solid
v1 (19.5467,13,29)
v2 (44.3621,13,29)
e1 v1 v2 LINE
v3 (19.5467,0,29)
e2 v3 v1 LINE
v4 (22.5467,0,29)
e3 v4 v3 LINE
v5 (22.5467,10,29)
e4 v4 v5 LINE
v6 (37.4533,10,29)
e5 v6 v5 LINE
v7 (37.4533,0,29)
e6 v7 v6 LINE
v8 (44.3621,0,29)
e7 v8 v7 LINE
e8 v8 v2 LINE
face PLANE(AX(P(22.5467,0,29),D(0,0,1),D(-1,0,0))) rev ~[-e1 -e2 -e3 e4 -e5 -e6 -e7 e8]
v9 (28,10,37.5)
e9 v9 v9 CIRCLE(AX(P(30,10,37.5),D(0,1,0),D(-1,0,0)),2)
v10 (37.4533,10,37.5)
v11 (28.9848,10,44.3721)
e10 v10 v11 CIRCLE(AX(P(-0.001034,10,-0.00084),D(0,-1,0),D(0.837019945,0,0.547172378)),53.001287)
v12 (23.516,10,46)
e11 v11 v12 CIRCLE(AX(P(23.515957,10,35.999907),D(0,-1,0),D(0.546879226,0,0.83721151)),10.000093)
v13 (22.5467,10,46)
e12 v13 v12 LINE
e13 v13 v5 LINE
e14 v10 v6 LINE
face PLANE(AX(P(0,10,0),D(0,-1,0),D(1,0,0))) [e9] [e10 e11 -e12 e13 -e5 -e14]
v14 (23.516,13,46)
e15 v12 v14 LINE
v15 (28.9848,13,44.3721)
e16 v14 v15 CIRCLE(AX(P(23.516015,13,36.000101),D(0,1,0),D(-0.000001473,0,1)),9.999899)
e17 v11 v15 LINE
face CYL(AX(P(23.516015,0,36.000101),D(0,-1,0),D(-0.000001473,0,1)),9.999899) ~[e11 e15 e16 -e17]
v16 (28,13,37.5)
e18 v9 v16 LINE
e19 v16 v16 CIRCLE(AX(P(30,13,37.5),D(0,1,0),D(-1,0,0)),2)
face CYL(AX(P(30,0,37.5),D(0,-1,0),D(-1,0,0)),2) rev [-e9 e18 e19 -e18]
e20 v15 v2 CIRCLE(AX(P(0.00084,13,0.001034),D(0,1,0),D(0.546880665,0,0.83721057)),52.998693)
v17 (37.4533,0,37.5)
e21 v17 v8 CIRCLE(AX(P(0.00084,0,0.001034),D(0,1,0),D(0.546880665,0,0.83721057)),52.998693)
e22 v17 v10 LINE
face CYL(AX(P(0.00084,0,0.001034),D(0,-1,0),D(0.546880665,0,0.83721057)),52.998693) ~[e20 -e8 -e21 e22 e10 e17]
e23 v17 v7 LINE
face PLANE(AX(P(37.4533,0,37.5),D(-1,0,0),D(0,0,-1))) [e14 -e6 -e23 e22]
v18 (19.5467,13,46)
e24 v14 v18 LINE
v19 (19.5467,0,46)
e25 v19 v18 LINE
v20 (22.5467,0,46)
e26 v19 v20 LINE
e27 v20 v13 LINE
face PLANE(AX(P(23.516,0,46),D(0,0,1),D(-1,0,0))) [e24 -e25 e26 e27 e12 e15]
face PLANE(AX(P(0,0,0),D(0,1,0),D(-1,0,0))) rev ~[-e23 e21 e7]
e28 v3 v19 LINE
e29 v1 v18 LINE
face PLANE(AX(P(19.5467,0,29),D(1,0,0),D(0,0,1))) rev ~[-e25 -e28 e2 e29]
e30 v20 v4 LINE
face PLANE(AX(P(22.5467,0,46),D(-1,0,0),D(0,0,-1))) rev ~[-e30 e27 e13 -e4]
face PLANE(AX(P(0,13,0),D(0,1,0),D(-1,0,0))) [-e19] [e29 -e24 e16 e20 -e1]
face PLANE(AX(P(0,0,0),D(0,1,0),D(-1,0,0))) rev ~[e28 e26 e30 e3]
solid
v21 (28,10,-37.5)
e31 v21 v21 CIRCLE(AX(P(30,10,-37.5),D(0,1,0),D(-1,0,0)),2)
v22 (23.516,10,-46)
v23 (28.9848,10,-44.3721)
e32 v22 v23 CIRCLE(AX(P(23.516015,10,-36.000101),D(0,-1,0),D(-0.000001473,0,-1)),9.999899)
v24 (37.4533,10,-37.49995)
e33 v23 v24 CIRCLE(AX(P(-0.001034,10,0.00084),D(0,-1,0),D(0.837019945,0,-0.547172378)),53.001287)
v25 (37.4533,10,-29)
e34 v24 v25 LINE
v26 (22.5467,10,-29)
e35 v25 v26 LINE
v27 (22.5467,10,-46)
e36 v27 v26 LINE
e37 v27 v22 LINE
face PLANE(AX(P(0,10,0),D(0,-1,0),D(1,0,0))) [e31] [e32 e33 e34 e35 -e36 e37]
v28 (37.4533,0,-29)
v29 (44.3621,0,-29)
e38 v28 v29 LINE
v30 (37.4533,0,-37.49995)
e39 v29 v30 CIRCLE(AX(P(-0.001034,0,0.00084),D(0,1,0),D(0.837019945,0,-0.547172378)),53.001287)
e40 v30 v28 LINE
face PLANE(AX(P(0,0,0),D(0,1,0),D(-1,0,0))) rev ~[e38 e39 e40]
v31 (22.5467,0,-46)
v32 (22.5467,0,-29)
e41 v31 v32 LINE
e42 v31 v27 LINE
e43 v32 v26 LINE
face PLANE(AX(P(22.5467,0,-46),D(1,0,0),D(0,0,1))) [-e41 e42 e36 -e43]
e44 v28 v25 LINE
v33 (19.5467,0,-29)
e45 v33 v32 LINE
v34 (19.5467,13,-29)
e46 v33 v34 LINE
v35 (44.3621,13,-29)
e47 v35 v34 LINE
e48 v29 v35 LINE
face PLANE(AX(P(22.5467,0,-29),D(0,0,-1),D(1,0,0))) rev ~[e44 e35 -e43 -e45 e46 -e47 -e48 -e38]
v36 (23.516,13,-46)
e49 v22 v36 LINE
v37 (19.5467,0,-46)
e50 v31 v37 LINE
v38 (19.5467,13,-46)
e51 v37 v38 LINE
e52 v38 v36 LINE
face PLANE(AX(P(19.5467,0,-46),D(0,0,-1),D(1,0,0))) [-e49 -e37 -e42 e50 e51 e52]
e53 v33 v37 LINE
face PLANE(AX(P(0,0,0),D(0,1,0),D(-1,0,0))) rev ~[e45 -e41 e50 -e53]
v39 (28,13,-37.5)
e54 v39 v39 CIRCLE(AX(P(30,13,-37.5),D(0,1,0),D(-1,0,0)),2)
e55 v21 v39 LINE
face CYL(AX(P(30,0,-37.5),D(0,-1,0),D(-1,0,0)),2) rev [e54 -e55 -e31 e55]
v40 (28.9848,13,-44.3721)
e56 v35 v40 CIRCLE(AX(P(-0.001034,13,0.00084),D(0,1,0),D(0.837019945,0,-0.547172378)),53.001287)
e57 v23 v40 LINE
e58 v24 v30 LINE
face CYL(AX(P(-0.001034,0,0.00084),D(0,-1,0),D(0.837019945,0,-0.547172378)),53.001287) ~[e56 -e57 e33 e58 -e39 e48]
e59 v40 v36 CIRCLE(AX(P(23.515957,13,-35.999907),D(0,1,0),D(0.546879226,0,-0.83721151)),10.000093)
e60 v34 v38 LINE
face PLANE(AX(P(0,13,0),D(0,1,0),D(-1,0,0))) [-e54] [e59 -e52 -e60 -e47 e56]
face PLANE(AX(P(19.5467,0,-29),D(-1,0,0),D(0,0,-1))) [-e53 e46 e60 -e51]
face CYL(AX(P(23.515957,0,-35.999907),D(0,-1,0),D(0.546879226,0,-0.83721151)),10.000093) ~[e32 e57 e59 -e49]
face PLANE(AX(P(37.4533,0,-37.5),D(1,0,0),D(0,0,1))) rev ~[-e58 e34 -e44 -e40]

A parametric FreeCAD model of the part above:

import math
import FreeCAD as App
import Part
import Sketcher
Q = App.Units.Quantity

doc = App.newDocument("Part")
body = doc.addObject("PartDesign::Body", "Body")
body.AllowCompound = True

sketch1 = body.newObject("Sketcher::SketchObject", "Sketch")
sketch1.AttachmentSupport = (doc.getObject("XZ_Plane"), [""])
sketch1.MapMode = "FlatFace"
sketch1.addGeometry([
    Part.LineSegment(App.Vector(19.5467, -29, 0), App.Vector(44.3621, -29, 0)),
    Part.ArcOfCircle(Part.Circle(App.Vector(-0.001034, 0.00084, 0), App.Vector(0, 0, 1), 53.001287), math.radians(-56.846137), math.radians(-33.173242)),
    Part.ArcOfCircle(Part.Circle(App.Vector(23.516, -36, 0), App.Vector(0, 0, 1), 9.999992), math.radians(-90), math.radians(-56.846738)),
    Part.LineSegment(App.Vector(23.516, -46, 0), App.Vector(19.5467, -46, 0)),
    Part.LineSegment(App.Vector(19.5467, -46, 0), App.Vector(19.5467, -29, 0)),
    Part.Circle(App.Vector(30, -37.5, 0), App.Vector(0, 0, 1), 2),
    Part.ArcOfCircle(Part.Circle(App.Vector(23.516, 36, 0), App.Vector(0, 0, 1), 10), math.radians(56.846738), math.radians(90)),
    Part.ArcOfCircle(Part.Circle(App.Vector(0.00084, 0.001034, 0), App.Vector(0, 0, 1), 52.998693), math.radians(33.172654), math.radians(56.846724)),
    Part.LineSegment(App.Vector(44.3621, 29, 0), App.Vector(19.5467, 29, 0)),
    Part.LineSegment(App.Vector(19.5467, 29, 0), App.Vector(19.5467, 46, 0)),
    Part.LineSegment(App.Vector(19.5467, 46, 0), App.Vector(23.516, 46, 0)),
    Part.Circle(App.Vector(30, 37.5, 0), App.Vector(0, 0, 1), 2),
], False)
sketch1.addConstraint([
    Sketcher.Constraint("Coincident", 0, 2, 1, 2),
    Sketcher.Constraint("Tangent", 1, 1, 2, 2),
    Sketcher.Constraint("Tangent", 2, 1, 3, 1),
    Sketcher.Constraint("Coincident", 3, 2, 4, 1),
    Sketcher.Constraint("Coincident", 4, 2, 0, 1),
    Sketcher.Constraint("Tangent", 6, 1, 7, 2),
    Sketcher.Constraint("Coincident", 7, 1, 8, 1),
    Sketcher.Constraint("Coincident", 8, 2, 9, 1),
    Sketcher.Constraint("Coincident", 9, 2, 10, 1),
    Sketcher.Constraint("Tangent", 10, 2, 6, 2),
    Sketcher.Constraint("Horizontal", 0),
    Sketcher.Constraint("Horizontal", 3),
    Sketcher.Constraint("Vertical", 4),
    Sketcher.Constraint("Horizontal", 8),
    Sketcher.Constraint("Vertical", 9),
    Sketcher.Constraint("Horizontal", 10),
    Sketcher.Constraint("Equal", 2, 6),
    Sketcher.Constraint("Equal", 5, 11),
    Sketcher.Constraint("Symmetric", 1, 3, 7, 3, -2),
    Sketcher.Constraint("Symmetric", 2, 3, 6, 3, -1),
    Sketcher.Constraint("Symmetric", 5, 3, 11, 3, -1),
    Sketcher.Constraint("Symmetric", 0, 2, 7, 1, -1),
    Sketcher.Constraint("Vertical", 4, 2, 8, 2),
    Sketcher.Constraint("Diameter", 5, Q("4 mm")),
    Sketcher.Constraint("Radius", 2, Q("10 mm")),
    Sketcher.Constraint("DistanceY", 4, 1, 4, 2, Q("17 mm")),
    Sketcher.Constraint("DistanceY", 2, 3, -1, 1, Q("36 mm")),
    Sketcher.Constraint("DistanceX", -1, 1, 5, 3, Q("30 mm")),
    Sketcher.Constraint("DistanceY", 5, 3, 11, 3, Q("75 mm")),
    Sketcher.Constraint("Radius", 1, Q("53.0013 mm")),
    Sketcher.Constraint("Radius", 7, Q("52.9987 mm")),
    Sketcher.Constraint("DistanceX", 0, 1, 0, 2, Q("24.8154 mm")),
])
pad1 = body.newObject("PartDesign::Pad", "Pad")
pad1.Profile = sketch1
pad1.Length = 13
pad1.Reversed = True

sketch2 = body.newObject("Sketcher::SketchObject", "Sketch001")
sketch2.AttachmentSupport = (doc.getObject("XZ_Plane"), [""])
sketch2.MapMode = "FlatFace"
sketch2.addGeometry([
    Part.LineSegment(App.Vector(37.4533, 29, 0), App.Vector(37.4533, 37.5, 0)),
    Part.ArcOfCircle(Part.Circle(App.Vector(-0.001034, -0.00084, 0), App.Vector(0, 0, 1), 53.001287), math.radians(45.035549), math.radians(56.846137)),
    Part.ArcOfCircle(Part.Circle(App.Vector(23.516, 36, 0), App.Vector(0, 0, 1), 9.999992), math.radians(56.846738), math.radians(90)),
    Part.LineSegment(App.Vector(23.516, 46, 0), App.Vector(22.5467, 46, 0)),
    Part.LineSegment(App.Vector(22.5467, 46, 0), App.Vector(22.5467, 29, 0)),
    Part.LineSegment(App.Vector(22.5467, 29, 0), App.Vector(37.4533, 29, 0)),
    Part.Circle(App.Vector(30, 37.5, 0), App.Vector(0, 0, 1), 2),
    Part.ArcOfCircle(Part.Circle(App.Vector(23.516, -36, 0), App.Vector(0, 0, 1), 10), math.radians(-90), math.radians(-56.846738)),
    Part.ArcOfCircle(Part.Circle(App.Vector(0.00084, -0.001034, 0), App.Vector(0, 0, 1), 52.998693), math.radians(-56.846724), math.radians(-45.035551)),
    Part.LineSegment(App.Vector(37.4533, -37.5, 0), App.Vector(37.4533, -29, 0)),
    Part.LineSegment(App.Vector(37.4533, -29, 0), App.Vector(22.5467, -29, 0)),
    Part.LineSegment(App.Vector(22.5467, -29, 0), App.Vector(22.5467, -46, 0)),
    Part.LineSegment(App.Vector(22.5467, -46, 0), App.Vector(23.516, -46, 0)),
    Part.Circle(App.Vector(30, -37.5, 0), App.Vector(0, 0, 1), 2),
], False)
sketch2.addConstraint([
    Sketcher.Constraint("Coincident", 0, 2, 1, 1),
    Sketcher.Constraint("Tangent", 1, 2, 2, 1),
    Sketcher.Constraint("Tangent", 2, 2, 3, 1),
    Sketcher.Constraint("Coincident", 3, 2, 4, 1),
    Sketcher.Constraint("Coincident", 4, 2, 5, 1),
    Sketcher.Constraint("Coincident", 5, 2, 0, 1),
    Sketcher.Constraint("Tangent", 7, 2, 8, 1),
    Sketcher.Constraint("Coincident", 8, 2, 9, 1),
    Sketcher.Constraint("Coincident", 9, 2, 10, 1),
    Sketcher.Constraint("Coincident", 10, 2, 11, 1),
    Sketcher.Constraint("Coincident", 11, 2, 12, 1),
    Sketcher.Constraint("Tangent", 12, 2, 7, 1),
    Sketcher.Constraint("Vertical", 0),
    Sketcher.Constraint("Horizontal", 3),
    Sketcher.Constraint("Vertical", 4),
    Sketcher.Constraint("Horizontal", 5),
    Sketcher.Constraint("Vertical", 9),
    Sketcher.Constraint("Horizontal", 10),
    Sketcher.Constraint("Vertical", 11),
    Sketcher.Constraint("Horizontal", 12),
    Sketcher.Constraint("Equal", 2, 7),
    Sketcher.Constraint("Equal", 6, 13),
    Sketcher.Constraint("Symmetric", 1, 3, 8, 3, -2),
    Sketcher.Constraint("Symmetric", 2, 3, 7, 3, -1),
    Sketcher.Constraint("Symmetric", 6, 3, 13, 3, -1),
    Sketcher.Constraint("Symmetric", 0, 2, 8, 2, -1),
    Sketcher.Constraint("Symmetric", 4, 2, 10, 2, -1),
    Sketcher.Constraint("Horizontal", 6, 3, 0, 2),
    Sketcher.Constraint("Diameter", 6, Q("4 mm")),
    Sketcher.Constraint("Radius", 2, Q("10 mm")),
    Sketcher.Constraint("DistanceY", 4, 2, 4, 1, Q("17 mm")),
    Sketcher.Constraint("DistanceY", 0, 1, 0, 2, Q("8.5 mm")),
    Sketcher.Constraint("DistanceY", -1, 1, 2, 3, Q("36 mm")),
    Sketcher.Constraint("DistanceX", -1, 1, 6, 3, Q("30 mm")),
    Sketcher.Constraint("Radius", 1, Q("53.0013 mm")),
    Sketcher.Constraint("Radius", 8, Q("52.9987 mm")),
    Sketcher.Constraint("DistanceX", 3, 2, 3, 1, Q("0.9693 mm")),
])
pocket1 = body.newObject("PartDesign::Pocket", "Pocket")
pocket1.Profile = sketch2
pocket1.Length = 10

doc.recompute()
